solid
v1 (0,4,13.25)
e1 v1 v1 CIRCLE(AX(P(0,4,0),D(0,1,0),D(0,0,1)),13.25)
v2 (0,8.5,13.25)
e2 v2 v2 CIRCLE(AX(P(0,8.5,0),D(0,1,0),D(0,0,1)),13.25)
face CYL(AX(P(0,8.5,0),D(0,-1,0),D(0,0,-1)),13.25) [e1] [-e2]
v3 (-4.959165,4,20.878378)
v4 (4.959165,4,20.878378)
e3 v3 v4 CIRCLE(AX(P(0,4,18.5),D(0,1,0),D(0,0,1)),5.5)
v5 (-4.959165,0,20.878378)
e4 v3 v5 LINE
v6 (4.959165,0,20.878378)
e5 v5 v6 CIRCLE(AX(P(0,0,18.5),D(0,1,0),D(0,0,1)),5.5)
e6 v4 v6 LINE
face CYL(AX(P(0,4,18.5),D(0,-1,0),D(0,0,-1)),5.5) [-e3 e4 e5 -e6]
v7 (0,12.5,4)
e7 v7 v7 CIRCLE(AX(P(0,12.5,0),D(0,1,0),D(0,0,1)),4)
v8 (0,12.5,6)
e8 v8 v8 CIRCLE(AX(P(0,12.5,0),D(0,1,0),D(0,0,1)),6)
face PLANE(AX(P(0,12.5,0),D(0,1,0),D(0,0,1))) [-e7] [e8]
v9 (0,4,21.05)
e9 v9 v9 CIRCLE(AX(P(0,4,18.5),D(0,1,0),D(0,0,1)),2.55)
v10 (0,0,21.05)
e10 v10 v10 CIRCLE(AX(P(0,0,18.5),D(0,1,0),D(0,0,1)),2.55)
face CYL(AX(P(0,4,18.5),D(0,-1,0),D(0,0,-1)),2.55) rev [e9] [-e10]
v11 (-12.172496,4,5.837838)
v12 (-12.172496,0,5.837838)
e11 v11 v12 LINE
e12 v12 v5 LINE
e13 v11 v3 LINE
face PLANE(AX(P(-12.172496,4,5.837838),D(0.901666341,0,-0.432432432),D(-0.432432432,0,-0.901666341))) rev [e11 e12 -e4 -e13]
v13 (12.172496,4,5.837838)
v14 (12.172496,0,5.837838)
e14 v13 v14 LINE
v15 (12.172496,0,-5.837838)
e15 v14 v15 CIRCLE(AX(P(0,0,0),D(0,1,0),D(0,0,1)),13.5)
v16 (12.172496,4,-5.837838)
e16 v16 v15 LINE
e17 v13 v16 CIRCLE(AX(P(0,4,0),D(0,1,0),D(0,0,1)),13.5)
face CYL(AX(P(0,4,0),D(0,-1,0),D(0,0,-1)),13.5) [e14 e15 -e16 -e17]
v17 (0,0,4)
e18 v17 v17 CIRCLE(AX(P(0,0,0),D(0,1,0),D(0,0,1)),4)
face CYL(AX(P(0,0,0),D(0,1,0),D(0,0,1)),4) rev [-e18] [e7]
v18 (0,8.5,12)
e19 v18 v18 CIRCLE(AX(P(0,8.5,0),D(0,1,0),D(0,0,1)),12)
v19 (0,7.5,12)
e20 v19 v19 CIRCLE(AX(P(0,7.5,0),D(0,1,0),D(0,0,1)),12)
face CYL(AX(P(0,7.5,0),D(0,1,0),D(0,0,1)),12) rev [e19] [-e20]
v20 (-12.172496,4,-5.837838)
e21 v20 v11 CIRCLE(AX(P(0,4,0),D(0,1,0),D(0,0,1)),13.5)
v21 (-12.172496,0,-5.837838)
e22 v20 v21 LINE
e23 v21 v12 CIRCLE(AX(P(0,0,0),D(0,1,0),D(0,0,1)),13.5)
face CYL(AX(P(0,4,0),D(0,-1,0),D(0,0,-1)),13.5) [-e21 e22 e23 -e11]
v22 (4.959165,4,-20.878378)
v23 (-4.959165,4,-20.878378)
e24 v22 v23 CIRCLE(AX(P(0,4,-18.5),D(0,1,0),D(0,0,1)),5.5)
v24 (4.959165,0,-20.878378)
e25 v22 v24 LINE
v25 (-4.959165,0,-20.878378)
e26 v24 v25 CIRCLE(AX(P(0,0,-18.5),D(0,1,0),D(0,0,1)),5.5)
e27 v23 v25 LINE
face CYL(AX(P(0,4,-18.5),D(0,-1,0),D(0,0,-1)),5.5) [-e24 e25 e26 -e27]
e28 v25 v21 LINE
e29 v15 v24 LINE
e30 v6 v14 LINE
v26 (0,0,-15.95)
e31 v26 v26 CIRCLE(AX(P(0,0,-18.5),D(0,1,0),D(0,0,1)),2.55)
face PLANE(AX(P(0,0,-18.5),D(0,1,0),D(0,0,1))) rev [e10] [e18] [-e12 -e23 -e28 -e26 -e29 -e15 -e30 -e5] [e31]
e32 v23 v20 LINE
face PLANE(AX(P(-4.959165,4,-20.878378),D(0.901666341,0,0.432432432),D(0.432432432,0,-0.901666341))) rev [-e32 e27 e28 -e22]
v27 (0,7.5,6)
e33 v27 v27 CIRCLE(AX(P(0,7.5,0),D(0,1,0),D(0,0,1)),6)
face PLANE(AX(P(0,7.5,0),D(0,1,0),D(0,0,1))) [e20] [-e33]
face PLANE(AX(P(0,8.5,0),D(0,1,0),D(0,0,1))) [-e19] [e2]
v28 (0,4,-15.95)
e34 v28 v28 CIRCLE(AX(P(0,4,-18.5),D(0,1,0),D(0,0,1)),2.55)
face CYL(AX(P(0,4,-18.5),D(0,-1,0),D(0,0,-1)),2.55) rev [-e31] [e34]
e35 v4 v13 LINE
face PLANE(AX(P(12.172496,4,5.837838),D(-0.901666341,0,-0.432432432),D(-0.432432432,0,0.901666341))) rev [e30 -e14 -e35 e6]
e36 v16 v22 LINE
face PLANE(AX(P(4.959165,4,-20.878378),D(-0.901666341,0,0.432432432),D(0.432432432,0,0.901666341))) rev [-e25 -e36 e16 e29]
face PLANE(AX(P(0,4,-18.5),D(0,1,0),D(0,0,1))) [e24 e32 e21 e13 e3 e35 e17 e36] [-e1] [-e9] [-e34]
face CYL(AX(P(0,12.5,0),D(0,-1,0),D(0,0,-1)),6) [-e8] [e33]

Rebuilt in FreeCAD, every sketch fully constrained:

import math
import FreeCAD as App
import Part
import Sketcher

V = App.Vector
Q = App.Units.Quantity

doc = App.newDocument("Part")
body = doc.addObject("PartDesign::Body", "Body")

sketch1 = body.newObject("Sketcher::SketchObject", "Sketch")
sketch1.AttachmentSupport = (doc.getObject("XZ_Plane"), [""])
sketch1.MapMode = "FlatFace"
sketch1.addGeometry([
    Part.LineSegment(V(12.172496, -5.837838, 0), V(4.959165, -20.878378, 0)),
    Part.ArcOfCircle(Part.Circle(V(0, -18.5, 0), V(0, 0, 1), 5.5), math.radians(-154.377972), math.radians(-25.622028)),
    Part.LineSegment(V(-4.959165, -20.878378, 0), V(-12.172496, -5.837838, 0)),
    Part.ArcOfCircle(Part.Circle(V(0, 0, 0), V(0, 0, 1), 13.5), math.radians(154.377972), math.radians(205.622028)),
    Part.LineSegment(V(-12.172496, 5.837838, 0), V(-4.959165, 20.878378, 0)),
    Part.ArcOfCircle(Part.Circle(V(0, 18.5, 0), V(0, 0, 1), 5.5), math.radians(25.622028), math.radians(154.377972)),
    Part.LineSegment(V(4.959165, 20.878378, 0), V(12.172496, 5.837838, 0)),
    Part.ArcOfCircle(Part.Circle(V(0, 0, 0), V(0, 0, 1), 13.5), math.radians(-25.622028), math.radians(25.622028)),
    Part.Circle(V(0, 18.5, 0), V(0, 0, 1), 2.55),
    Part.Circle(V(0, -18.5, 0), V(0, 0, 1), 2.55),
], False)
sketch1.addConstraint([
    Sketcher.Constraint("Tangent", 0, 2, 1, 2),
    Sketcher.Constraint("Tangent", 1, 1, 2, 1),
    Sketcher.Constraint("Tangent", 2, 2, 3, 2),
    Sketcher.Constraint("Tangent", 3, 1, 4, 1),
    Sketcher.Constraint("Tangent", 4, 2, 5, 2),
    Sketcher.Constraint("Tangent", 5, 1, 6, 1),
    Sketcher.Constraint("Tangent", 6, 2, 7, 2),
    Sketcher.Constraint("Tangent", 7, 1, 0, 1),
    Sketcher.Constraint("Coincident", 3, 3, -1, 1),
    Sketcher.Constraint("Coincident", 7, 3, -1, 1),
    Sketcher.Constraint("Coincident", 8, 3, 5, 3),
    Sketcher.Constraint("Coincident", 9, 3, 1, 3),
    Sketcher.Constraint("Equal", 1, 5),
    Sketcher.Constraint("Equal", 3, 7),
    Sketcher.Constraint("Equal", 8, 9),
    Sketcher.Constraint("Symmetric", 1, 3, 5, 3, -1, 1),
    Sketcher.Constraint("PointOnObject", 1, 3, -2),
    Sketcher.Constraint("Diameter", 8, Q("5.1 mm")),
    Sketcher.Constraint("Radius", 1, Q("5.5 mm")),
    Sketcher.Constraint("Radius", 3, Q("13.5 mm")),
    Sketcher.Constraint("DistanceY", 1, 3, 5, 3, Q("37 mm")),
])
pad1 = body.newObject("PartDesign::Pad", "Pad")
pad1.Profile = sketch1
pad1.Length = 4
pad1.Reversed = True

sketch2 = body.newObject("Sketcher::SketchObject", "Sketch001")
sketch2.AttachmentSupport = (doc.getObject("XZ_Plane"), [""])
sketch2.MapMode = "FlatFace"
sketch2.AttachmentOffset = App.Placement(V(0, 0, -4), App.Rotation())
sketch2.addGeometry(Part.Circle(V(0, 0, 0), V(0, 0, 1), 13.25), False)
sketch2.addConstraint([
    Sketcher.Constraint("Coincident", 0, 3, -1, 1),
    Sketcher.Constraint("Diameter", 0, Q("26.5 mm")),
])
pad2 = body.newObject("PartDesign::Pad", "Pad001")
pad2.Profile = sketch2
pad2.Length = 4.5
pad2.Reversed = True

sketch3 = body.newObject("Sketcher::SketchObject", "Sketch002")
sketch3.AttachmentSupport = (doc.getObject("XZ_Plane"), [""])
sketch3.MapMode = "FlatFace"
sketch3.AttachmentOffset = App.Placement(V(0, 0, -8.5), App.Rotation())
sketch3.addGeometry(Part.Circle(V(0, 0, 0), V(0, 0, 1), 12), False)
sketch3.addConstraint([
    Sketcher.Constraint("Coincident", 0, 3, -1, 1),
    Sketcher.Constraint("Diameter", 0, Q("24 mm")),
])
pocket1 = body.newObject("PartDesign::Pocket", "Pocket")
pocket1.Profile = sketch3
pocket1.Length = 1
pocket1.Reversed = True

sketch4 = body.newObject("Sketcher::SketchObject", "Sketch003")
sketch4.AttachmentSupport = (doc.getObject("XZ_Plane"), [""])
sketch4.MapMode = "FlatFace"
sketch4.AttachmentOffset = App.Placement(V(0, 0, -7.5), App.Rotation())
sketch4.addGeometry(Part.Circle(V(0, 0, 0), V(0, 0, 1), 6), False)
sketch4.addConstraint([
    Sketcher.Constraint("Coincident", 0, 3, -1, 1),
    Sketcher.Constraint("Diameter", 0, Q("12 mm")),
])
pad3 = body.newObject("PartDesign::Pad", "Pad002")
pad3.Profile = sketch4
pad3.Length = 5
pad3.Reversed = True

sketch5 = body.newObject("Sketcher::SketchObject", "Sketch004")
sketch5.AttachmentSupport = (doc.getObject("XZ_Plane"), [""])
sketch5.MapMode = "FlatFace"
sketch5.AttachmentOffset = App.Placement(V(0, 0, -12.5), App.Rotation())
sketch5.addGeometry(Part.Circle(V(0, 0, 0), V(0, 0, 1), 4), False)
sketch5.addConstraint([
    Sketcher.Constraint("Coincident", 0, 3, -1, 1),
    Sketcher.Constraint("Diameter", 0, Q("8 mm")),
])
pocket2 = body.newObject("PartDesign::Pocket", "Pocket001")
pocket2.Profile = sketch5
pocket2.Type = "ThroughAll"
pocket2.Reversed = True

doc.recompute()
